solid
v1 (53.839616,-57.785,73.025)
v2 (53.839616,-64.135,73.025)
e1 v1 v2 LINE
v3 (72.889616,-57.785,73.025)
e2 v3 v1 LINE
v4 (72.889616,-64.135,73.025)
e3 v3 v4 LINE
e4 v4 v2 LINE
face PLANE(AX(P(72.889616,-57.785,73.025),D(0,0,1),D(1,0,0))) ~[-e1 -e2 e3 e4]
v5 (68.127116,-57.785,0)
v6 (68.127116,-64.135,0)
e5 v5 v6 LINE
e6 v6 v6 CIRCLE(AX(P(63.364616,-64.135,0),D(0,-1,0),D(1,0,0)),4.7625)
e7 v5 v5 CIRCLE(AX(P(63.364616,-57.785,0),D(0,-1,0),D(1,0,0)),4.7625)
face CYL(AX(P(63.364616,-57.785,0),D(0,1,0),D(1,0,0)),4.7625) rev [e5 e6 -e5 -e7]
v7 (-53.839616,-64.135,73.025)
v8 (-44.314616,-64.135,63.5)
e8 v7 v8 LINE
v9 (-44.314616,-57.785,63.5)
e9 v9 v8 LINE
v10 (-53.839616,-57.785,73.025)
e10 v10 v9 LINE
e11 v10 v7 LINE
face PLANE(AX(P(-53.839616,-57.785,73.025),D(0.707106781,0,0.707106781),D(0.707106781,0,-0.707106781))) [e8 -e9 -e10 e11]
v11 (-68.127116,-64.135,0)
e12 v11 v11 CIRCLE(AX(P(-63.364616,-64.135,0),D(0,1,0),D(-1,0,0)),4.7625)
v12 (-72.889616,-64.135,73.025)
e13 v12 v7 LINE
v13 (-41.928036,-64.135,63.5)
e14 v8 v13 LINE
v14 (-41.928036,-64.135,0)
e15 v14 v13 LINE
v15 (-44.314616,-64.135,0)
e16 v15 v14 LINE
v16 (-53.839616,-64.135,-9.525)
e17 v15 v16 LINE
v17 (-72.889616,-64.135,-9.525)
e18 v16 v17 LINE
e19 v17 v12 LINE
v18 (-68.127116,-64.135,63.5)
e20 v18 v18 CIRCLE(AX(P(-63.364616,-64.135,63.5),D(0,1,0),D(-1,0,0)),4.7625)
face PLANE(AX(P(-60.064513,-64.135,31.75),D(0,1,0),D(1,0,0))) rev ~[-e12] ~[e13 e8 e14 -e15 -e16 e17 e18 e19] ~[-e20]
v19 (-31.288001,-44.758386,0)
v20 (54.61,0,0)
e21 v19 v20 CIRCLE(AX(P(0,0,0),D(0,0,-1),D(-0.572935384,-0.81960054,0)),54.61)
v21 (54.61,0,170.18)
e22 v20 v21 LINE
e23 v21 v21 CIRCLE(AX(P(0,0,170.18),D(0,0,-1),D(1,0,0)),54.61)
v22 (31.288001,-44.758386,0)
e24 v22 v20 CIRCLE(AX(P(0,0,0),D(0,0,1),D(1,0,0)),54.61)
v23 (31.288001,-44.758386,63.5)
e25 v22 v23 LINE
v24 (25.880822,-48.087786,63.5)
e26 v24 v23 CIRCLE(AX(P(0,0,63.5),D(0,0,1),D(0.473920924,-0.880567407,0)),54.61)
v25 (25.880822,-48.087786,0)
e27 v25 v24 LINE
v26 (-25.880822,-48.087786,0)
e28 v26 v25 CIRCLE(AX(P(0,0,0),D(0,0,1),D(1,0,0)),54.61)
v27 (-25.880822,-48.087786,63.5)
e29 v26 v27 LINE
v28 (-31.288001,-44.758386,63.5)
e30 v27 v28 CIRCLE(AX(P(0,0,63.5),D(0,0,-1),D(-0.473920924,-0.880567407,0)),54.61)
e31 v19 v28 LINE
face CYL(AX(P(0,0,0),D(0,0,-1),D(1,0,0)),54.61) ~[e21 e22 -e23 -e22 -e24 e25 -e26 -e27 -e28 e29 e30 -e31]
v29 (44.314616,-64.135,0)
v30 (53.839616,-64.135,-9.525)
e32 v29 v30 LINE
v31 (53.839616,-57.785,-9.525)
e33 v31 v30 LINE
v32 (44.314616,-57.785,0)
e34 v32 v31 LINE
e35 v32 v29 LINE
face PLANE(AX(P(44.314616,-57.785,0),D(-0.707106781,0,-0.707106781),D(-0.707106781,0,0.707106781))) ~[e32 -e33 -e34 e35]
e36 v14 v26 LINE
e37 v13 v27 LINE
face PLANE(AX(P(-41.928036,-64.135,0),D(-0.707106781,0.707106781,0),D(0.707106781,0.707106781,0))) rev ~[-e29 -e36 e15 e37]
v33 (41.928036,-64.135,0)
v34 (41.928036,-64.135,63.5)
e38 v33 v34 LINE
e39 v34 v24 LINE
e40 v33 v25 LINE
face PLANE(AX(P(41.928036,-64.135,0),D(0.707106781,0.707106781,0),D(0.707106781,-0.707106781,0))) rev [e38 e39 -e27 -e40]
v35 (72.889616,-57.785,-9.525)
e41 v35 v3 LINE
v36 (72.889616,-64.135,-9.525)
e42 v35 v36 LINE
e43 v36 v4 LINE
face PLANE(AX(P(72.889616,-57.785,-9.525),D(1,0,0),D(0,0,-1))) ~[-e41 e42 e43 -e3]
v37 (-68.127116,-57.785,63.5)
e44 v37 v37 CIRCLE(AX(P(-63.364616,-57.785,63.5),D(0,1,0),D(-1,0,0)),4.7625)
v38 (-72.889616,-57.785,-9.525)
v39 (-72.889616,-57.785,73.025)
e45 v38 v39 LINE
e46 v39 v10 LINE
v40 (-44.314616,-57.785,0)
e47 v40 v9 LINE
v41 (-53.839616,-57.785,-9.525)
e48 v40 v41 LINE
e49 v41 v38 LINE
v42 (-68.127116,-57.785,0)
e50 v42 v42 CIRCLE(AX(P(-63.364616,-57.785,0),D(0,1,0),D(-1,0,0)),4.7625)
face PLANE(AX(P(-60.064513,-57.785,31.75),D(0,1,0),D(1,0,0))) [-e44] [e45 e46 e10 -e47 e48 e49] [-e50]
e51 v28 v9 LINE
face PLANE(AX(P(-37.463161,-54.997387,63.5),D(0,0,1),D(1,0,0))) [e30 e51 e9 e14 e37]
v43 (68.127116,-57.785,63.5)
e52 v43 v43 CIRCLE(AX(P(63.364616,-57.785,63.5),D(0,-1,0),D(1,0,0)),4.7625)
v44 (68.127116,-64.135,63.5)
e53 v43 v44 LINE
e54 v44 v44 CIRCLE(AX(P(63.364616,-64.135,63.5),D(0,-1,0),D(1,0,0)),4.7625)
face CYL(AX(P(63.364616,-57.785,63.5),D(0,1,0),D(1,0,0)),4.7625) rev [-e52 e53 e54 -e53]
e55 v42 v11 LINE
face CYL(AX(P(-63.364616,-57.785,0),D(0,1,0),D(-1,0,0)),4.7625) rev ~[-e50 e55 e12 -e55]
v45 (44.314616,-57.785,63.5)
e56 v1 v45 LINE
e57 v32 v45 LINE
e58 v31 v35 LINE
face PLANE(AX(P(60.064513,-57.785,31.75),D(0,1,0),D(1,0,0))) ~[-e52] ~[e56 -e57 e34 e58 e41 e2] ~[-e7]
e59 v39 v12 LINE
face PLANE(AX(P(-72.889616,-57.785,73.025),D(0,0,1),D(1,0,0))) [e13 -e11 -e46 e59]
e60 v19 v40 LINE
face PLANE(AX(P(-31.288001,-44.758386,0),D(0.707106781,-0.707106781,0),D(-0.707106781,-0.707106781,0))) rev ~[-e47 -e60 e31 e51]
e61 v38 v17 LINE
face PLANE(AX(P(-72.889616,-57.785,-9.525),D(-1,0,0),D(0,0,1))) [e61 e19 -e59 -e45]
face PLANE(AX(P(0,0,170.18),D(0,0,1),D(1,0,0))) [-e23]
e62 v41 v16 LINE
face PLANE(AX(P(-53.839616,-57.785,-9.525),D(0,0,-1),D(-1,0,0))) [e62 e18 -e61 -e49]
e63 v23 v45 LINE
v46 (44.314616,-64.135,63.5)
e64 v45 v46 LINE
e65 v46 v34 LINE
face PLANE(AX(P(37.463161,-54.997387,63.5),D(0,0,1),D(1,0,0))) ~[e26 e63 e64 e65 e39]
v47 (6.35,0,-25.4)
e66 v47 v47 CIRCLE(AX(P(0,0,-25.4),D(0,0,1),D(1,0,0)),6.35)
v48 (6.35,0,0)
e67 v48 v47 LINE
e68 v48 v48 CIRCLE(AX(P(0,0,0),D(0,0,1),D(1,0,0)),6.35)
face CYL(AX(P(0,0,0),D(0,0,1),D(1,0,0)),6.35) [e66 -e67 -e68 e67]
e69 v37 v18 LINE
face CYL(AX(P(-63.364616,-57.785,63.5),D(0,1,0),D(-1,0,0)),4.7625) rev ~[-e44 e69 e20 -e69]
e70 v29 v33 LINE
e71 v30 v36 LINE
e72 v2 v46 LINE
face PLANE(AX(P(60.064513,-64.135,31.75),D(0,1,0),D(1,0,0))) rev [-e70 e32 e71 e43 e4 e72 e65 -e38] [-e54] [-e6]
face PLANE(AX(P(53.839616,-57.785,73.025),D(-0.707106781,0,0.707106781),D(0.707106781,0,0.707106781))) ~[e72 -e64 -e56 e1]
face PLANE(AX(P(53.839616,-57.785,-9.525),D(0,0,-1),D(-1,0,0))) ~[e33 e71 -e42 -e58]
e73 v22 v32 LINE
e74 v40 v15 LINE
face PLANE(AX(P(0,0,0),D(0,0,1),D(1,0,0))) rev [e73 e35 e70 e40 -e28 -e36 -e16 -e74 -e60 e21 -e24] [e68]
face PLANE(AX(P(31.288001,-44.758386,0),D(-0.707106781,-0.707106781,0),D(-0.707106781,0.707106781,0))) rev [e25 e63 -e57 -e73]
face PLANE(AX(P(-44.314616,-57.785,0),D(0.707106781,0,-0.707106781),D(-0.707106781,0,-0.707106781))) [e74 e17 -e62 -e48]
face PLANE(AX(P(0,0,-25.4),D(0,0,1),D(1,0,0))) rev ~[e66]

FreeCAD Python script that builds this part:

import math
import FreeCAD as App
import Part
import Sketcher
Q = App.Units.Quantity

doc = App.newDocument("Part")
body = doc.addObject("PartDesign::Body", "Body")

sketch1 = body.newObject("Sketcher::SketchObject", "Sketch")
sketch1.AttachmentSupport = (doc.getObject("XY_Plane"), [""])
sketch1.MapMode = "FlatFace"
sketch1.addGeometry(Part.Circle(App.Vector(0, 0, 0), App.Vector(0, 0, 1), 54.61), False)
sketch1.addConstraint([
    Sketcher.Constraint("Coincident", 0, 3, -1, 1),
    Sketcher.Constraint("Diameter", 0, Q("4.3 in")),
])
pad1 = body.newObject("PartDesign::Pad", "Pad")
pad1.Profile = sketch1
pad1.Length = Q("6.7 in")

sketch2 = body.newObject("Sketcher::SketchObject", "Sketch001")
sketch2.AttachmentSupport = (doc.getObject("XY_Plane"), [""])
sketch2.MapMode = "FlatFace"
sketch2.addGeometry(Part.Circle(App.Vector(0, 0, 0), App.Vector(0, 0, 1), 6.35), False)
sketch2.addConstraint([
    Sketcher.Constraint("Coincident", 0, 3, -1, 1),
    Sketcher.Constraint("Diameter", 0, Q("0.5 in")),
])
pad2 = body.newObject("PartDesign::Pad", "Pad001")
pad2.Profile = sketch2
pad2.Length = Q("1 in")
pad2.Reversed = True

sketch3 = body.newObject("Sketcher::SketchObject", "Sketch002")
sketch3.AttachmentSupport = (doc.getObject("XY_Plane"), [""])
sketch3.MapMode = "FlatFace"
sketch3.addGeometry([
    Part.LineSegment(App.Vector(-31.288001, -44.758386, 0), App.Vector(-44.314616, -57.785, 0)),
    Part.LineSegment(App.Vector(-44.314616, -57.785, 0), App.Vector(-47.489616, -57.785, 0)),
    Part.LineSegment(App.Vector(-47.489616, -57.785, 0), App.Vector(-47.489616, -64.135, 0)),
    Part.LineSegment(App.Vector(-47.489616, -64.135, 0), App.Vector(-41.928036, -64.135, 0)),
    Part.LineSegment(App.Vector(-41.928036, -64.135, 0), App.Vector(-25.880822, -48.087786, 0)),
    Part.ArcOfCircle(Part.Circle(App.Vector(0, 0, 0), App.Vector(0, 0, 1), 54.61), math.radians(-124.955174), math.radians(-118.289115)),
], False)
sketch3.addConstraint([
    Sketcher.Constraint("Coincident", 0, 2, 1, 1),
    Sketcher.Constraint("Coincident", 1, 2, 2, 1),
    Sketcher.Constraint("Coincident", 2, 2, 3, 1),
    Sketcher.Constraint("Coincident", 3, 2, 4, 1),
    Sketcher.Constraint("Coincident", 4, 2, 5, 2),
    Sketcher.Constraint("Coincident", 5, 1, 0, 1),
    Sketcher.Constraint("Horizontal", 1),
    Sketcher.Constraint("Vertical", 2),
    Sketcher.Constraint("Horizontal", 3),
    Sketcher.Constraint("Coincident", 5, 3, -1, 1),
    Sketcher.Constraint("Parallel", 0, 4),
    Sketcher.Constraint("Radius", 5, Q("2.15 in")),
    Sketcher.Constraint("Angle", 0, Q("-135 deg")),
    Sketcher.Constraint("DistanceY", 2, 2, 2, 1, Q("0.25 in")),
    Sketcher.Constraint("DistanceX", 1, 2, 1, 1, Q("0.125 in")),
    Sketcher.Constraint("DistanceY", 0, 2, -1, 1, Q("2.275 in")),
    Sketcher.Constraint("DistanceX", 3, 1, 3, 2, 5.56158),
    Sketcher.Constraint("DistanceX", 5, 1, -1, 1, 31.288001),
])
pad3 = body.newObject("PartDesign::Pad", "Pad002")
pad3.Profile = sketch3
pad3.Length = Q("2.5 in")

sketch4 = body.newObject("Sketcher::SketchObject", "Sketch003")
sketch4.AttachmentSupport = (doc.getObject("XZ_Plane"), [""])
sketch4.MapMode = "FlatFace"
sketch4.AttachmentOffset = App.Placement(App.Vector(0, 0, 2.275 * 25.4), App.Rotation())
sketch4.addGeometry([
    Part.LineSegment(App.Vector(-72.889616, 73.025, 0), App.Vector(-53.839616, 73.025, 0)),
    Part.LineSegment(App.Vector(-53.839616, 73.025, 0), App.Vector(-44.314616, 63.5, 0)),
    Part.LineSegment(App.Vector(-44.314616, 63.5, 0), App.Vector(-44.314616, 0, 0)),
    Part.LineSegment(App.Vector(-44.314616, 0, 0), App.Vector(-53.839616, -9.525, 0)),
    Part.LineSegment(App.Vector(-53.839616, -9.525, 0), App.Vector(-72.889616, -9.525, 0)),
    Part.LineSegment(App.Vector(-72.889616, -9.525, 0), App.Vector(-72.889616, 73.025, 0)),
    Part.Circle(App.Vector(-63.364616, 63.5, 0), App.Vector(0, 0, 1), 4.7625),
    Part.Circle(App.Vector(-63.364616, 0, 0), App.Vector(0, 0, 1), 4.7625),
], False)
sketch4.addConstraint([
    Sketcher.Constraint("Coincident", 0, 2, 1, 1),
    Sketcher.Constraint("Coincident", 1, 2, 2, 1),
    Sketcher.Constraint("Coincident", 2, 2, 3, 1),
    Sketcher.Constraint("Coincident", 3, 2, 4, 1),
    Sketcher.Constraint("Coincident", 4, 2, 5, 1),
    Sketcher.Constraint("Coincident", 5, 2, 0, 1),
    Sketcher.Constraint("Horizontal", 0),
    Sketcher.Constraint("Vertical", 2),
    Sketcher.Constraint("Horizontal", 4),
    Sketcher.Constraint("Vertical", 5),
    Sketcher.Constraint("Equal", 6, 7),
    Sketcher.Constraint("PointOnObject", 7, 3, -1),
    Sketcher.Constraint("PointOnObject", 2, 2, -1),
    Sketcher.Constraint("Perpendicular", 1, 3),
    Sketcher.Constraint("Horizontal", 6, 3, 1, 2),
    Sketcher.Constraint("Vertical", 6, 3, 7, 3),
    Sketcher.Constraint("Vertical", 0, 2, 3, 2),
    Sketcher.Constraint("Equal", 1, 3),
    Sketcher.Constraint("Diameter", 6, Q("0.375 in")),
    Sketcher.Constraint("DistanceY", 2, 2, 2, 1, Q("2.5 in")),
    Sketcher.Constraint("DistanceX", 0, 1, 0, 2, Q("0.75 in")),
    Sketcher.Constraint("DistanceY", 5, 1, 5, 2, Q("3.25 in")),
    Sketcher.Constraint("DistanceX", 6, 3, 1, 2, Q("0.75 in")),
    Sketcher.Constraint("DistanceX", 6, 3, -1, 1, 63.364616),
])
pad4 = body.newObject("PartDesign::Pad", "Pad003")
pad4.Profile = sketch4
pad4.Length = Q("0.25 in")
body2 = doc.addObject("PartDesign::Body", "Body001")
doc.recompute()

body2.BaseFeature = body
doc.recompute()

mirroring = doc.addObject("Part::Mirroring", "Mirroring")
mirroring.Source = body
mirroring.Base = App.Vector(0, 0, 0)
mirroring.Normal = App.Vector(1, 0, 0)
body3 = doc.addObject("PartDesign::Body", "Body002")
body3.BaseFeature = mirroring
boolean = body2.newObject("PartDesign::Boolean", "Boolean")
boolean.Type = "Fuse"
boolean.addObjects([body3])
doc.recompute()
mirroring.Visibility = False

doc.recompute()
